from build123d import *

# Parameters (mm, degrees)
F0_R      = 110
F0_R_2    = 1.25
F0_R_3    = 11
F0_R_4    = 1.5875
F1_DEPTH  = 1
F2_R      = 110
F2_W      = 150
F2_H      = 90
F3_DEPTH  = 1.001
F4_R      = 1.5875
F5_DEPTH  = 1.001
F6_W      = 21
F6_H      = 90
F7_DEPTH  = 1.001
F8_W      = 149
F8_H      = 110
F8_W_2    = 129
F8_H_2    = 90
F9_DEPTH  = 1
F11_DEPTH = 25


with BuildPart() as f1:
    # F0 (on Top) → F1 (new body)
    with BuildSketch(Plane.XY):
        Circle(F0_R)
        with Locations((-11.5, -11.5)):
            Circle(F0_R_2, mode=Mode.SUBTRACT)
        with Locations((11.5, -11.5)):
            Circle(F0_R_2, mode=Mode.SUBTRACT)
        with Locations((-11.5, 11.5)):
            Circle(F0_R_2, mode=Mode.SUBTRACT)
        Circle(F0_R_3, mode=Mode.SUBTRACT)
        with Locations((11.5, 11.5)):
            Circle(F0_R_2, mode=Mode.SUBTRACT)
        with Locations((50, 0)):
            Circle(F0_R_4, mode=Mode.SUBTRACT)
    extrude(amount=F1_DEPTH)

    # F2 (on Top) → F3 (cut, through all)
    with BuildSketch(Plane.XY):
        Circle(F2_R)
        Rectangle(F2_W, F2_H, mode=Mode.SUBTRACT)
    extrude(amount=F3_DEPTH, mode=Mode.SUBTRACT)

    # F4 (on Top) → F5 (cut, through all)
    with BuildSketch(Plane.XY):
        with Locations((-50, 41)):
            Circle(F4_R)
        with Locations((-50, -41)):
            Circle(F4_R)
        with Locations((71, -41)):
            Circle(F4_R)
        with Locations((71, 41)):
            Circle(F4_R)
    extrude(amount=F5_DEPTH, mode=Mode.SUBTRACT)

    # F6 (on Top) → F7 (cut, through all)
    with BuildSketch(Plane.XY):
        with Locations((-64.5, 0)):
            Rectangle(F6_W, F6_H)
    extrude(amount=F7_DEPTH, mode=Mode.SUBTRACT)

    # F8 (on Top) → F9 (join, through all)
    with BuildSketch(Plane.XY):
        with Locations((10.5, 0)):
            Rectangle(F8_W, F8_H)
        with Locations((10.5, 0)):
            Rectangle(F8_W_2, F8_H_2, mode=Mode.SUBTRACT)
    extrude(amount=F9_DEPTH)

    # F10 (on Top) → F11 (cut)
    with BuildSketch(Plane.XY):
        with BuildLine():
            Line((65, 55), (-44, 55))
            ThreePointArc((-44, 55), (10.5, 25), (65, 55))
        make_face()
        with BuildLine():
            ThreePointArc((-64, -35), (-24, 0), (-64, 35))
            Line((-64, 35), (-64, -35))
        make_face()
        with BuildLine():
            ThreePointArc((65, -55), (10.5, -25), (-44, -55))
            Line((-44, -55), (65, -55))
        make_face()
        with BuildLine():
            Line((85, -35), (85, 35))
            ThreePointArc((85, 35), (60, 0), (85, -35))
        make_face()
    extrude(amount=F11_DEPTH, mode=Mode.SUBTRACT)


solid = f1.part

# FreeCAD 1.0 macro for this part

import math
import FreeCAD as App
import Part
import Sketcher


def add_polygon(sketch, points):
    """Adds a closed chain of lines whose ends are joined by coincident constraints."""
    first, n = sketch.GeometryCount, len(points)
    for a, b in zip(points, points[1:] + points[:1]):
        sketch.addGeometry(Part.LineSegment(App.Vector(*a, 0), App.Vector(*b, 0)), False)
    for i in range(n):
        sketch.addConstraint(Sketcher.Constraint("Coincident", first + i, 2, first + (i + 1) % n, 1))

doc = App.newDocument("Part")
params = doc.addObject("Spreadsheet::Sheet", "Params")
for row, (alias, value) in enumerate([
    ("sketch1_diameter", "220 mm"),
    ("sketch1_diameter2", "22 mm"),
    ("sketch1_diameter3", "2.5 mm"),
    ("pad1_length", "1 mm"),
    ("sketch2_diameter", "220 mm"),
    ("sketch2_width", "150 mm"),
    ("sketch2_height", "90 mm"),
    ("sketch4_width", "21 mm"),
    ("sketch4_height", "90 mm"),
    ("sketch5_width", "149 mm"),
    ("sketch5_width2", "129 mm"),
    ("sketch5_height", "110 mm"),
    ("sketch5_height2", "90 mm"),
    ("pad2_length", "1 mm"),
    ("sketch6_radius", "37 mm"),
    ("sketch6_width", "109 mm"),
    ("sketch6_height", "70 mm"),
    ("pocket4_length", "25 mm"),
], start=1):
    params.set(f"A{row}", alias)
    params.set(f"B{row}", "=" + value)
    params.setAlias(f"B{row}", alias)

body = doc.addObject("PartDesign::Body", "Body")

# Sketch on XY plane
sketch1 = body.newObject("Sketcher::SketchObject", "Sketch")
sketch1.AttachmentSupport = (doc.getObject("XY_Plane"), [""])
sketch1.MapMode = "FlatFace"
sketch1.addGeometry([
    Part.Circle(App.Vector(0, 0, 0), App.Vector(0, 0, 1), 110),  # 0
    Part.Circle(App.Vector(-11.5, -11.5, 0), App.Vector(0, 0, 1), 1.2),  # 1
    Part.Circle(App.Vector(11.5, -11.5, 0), App.Vector(0, 0, 1), 1.2),  # 2
    Part.Circle(App.Vector(0, 0, 0), App.Vector(0, 0, 1), 11),  # 3
    Part.Circle(App.Vector(-11.5, 11.5, 0), App.Vector(0, 0, 1), 1.2),  # 4
    Part.Circle(App.Vector(11.5, 11.5, 0), App.Vector(0, 0, 1), 1.2),  # 5
    Part.Circle(App.Vector(50, 0, 0), App.Vector(0, 0, 1), 1.6),  # 6
], False)
sketch1.addConstraint([
    Sketcher.Constraint("Coincident", 0, 3, -1, 1),
    Sketcher.Constraint("Coincident", 3, 3, -1, 1),
    Sketcher.Constraint("Equal", 1, 2),
    Sketcher.Constraint("Equal", 2, 4),
    Sketcher.Constraint("Equal", 4, 5),
    Sketcher.Constraint("Symmetric", 2, 3, 4, 3, -1, 1),
    Sketcher.Constraint("Symmetric", 1, 3, 5, 3, -1, 1),
    Sketcher.Constraint("Symmetric", 1, 3, 2, 3, -2),
    Sketcher.Constraint("PointOnObject", 6, 3, -1),
    Sketcher.Constraint("Diameter", 0, 220.0),
    Sketcher.Constraint("Diameter", 3, 22.0),
    Sketcher.Constraint("Diameter", 1, 2.5),
    Sketcher.Constraint("Diameter", 6, 3.175),
    Sketcher.Constraint("DistanceX", -1, 1, 6, 3, 50.0),
    Sketcher.Constraint("DistanceX", 1, 3, 2, 3, 23.0),
    Sketcher.Constraint("DistanceY", 1, 3, 4, 3, 23.0),
])
sketch1.setExpression("Constraints[9]", "Params.sketch1_diameter")
sketch1.setExpression("Constraints[10]", "Params.sketch1_diameter2")
sketch1.setExpression("Constraints[11]", "Params.sketch1_diameter3")
pad1 = body.newObject("PartDesign::Pad", "Pad")
pad1.Profile = sketch1
pad1.setExpression("Length", "Params.pad1_length")

# Sketch on XY plane
sketch2 = body.newObject("Sketcher::SketchObject", "Sketch001")
sketch2.AttachmentSupport = (doc.getObject("XY_Plane"), [""])
sketch2.MapMode = "FlatFace"
sketch2.addGeometry(Part.Circle(App.Vector(0, 0, 0), App.Vector(0, 0, 1), 110), False)  # 0
add_polygon(sketch2, [(75, -45), (-75, -45), (-75, 45), (75, 45)])  # lines 1-4
sketch2.addConstraint([
    Sketcher.Constraint("Horizontal", 1),
    Sketcher.Constraint("Vertical", 2),
    Sketcher.Constraint("Horizontal", 3),
    Sketcher.Constraint("Vertical", 4),
    Sketcher.Constraint("Coincident", 0, 3, -1, 1),
    Sketcher.Constraint("Symmetric", 1, 2, 3, 2, -1, 1),
    Sketcher.Constraint("Diameter", 0, 220.0),
    Sketcher.Constraint("DistanceX", 1, 2, 1, 1, 150.0),
    Sketcher.Constraint("DistanceY", 2, 1, 2, 2, 90.0),
])
sketch2.setExpression("Constraints[10]", "Params.sketch2_diameter")
sketch2.setExpression("Constraints[11]", "Params.sketch2_width")
sketch2.setExpression("Constraints[12]", "Params.sketch2_height")
pocket1 = body.newObject("PartDesign::Pocket", "Pocket")
pocket1.Profile = sketch2
pocket1.Type = "ThroughAll"
pocket1.Reversed = True

# Sketch on XY plane
sketch3 = body.newObject("Sketcher::SketchObject", "Sketch002")
sketch3.AttachmentSupport = (doc.getObject("XY_Plane"), [""])
sketch3.MapMode = "FlatFace"
sketch3.addGeometry([
    Part.Circle(App.Vector(-50, 41, 0), App.Vector(0, 0, 1), 1.6),
    Part.Circle(App.Vector(-50, -41, 0), App.Vector(0, 0, 1), 1.6),
    Part.Circle(App.Vector(71, -41, 0), App.Vector(0, 0, 1), 1.6),
    Part.Circle(App.Vector(71, 41, 0), App.Vector(0, 0, 1), 1.6),
], False)
sketch3.addConstraint([
    Sketcher.Constraint("Equal", 0, 1),
    Sketcher.Constraint("Equal", 1, 2),
    Sketcher.Constraint("Equal", 2, 3),
    Sketcher.Constraint("Symmetric", 0, 3, 1, 3, -1),
    Sketcher.Constraint("Symmetric", 2, 3, 3, 3, -1),
    Sketcher.Constraint("Horizontal", 1, 3, 2, 3),
    Sketcher.Constraint("Diameter", 0, 3.175),
    Sketcher.Constraint("DistanceX", 0, 3, -1, 1, 50.0),
    Sketcher.Constraint("DistanceY", -1, 1, 0, 3, 41.0),
    Sketcher.Constraint("DistanceX", -1, 1, 2, 3, 71.0),
])
pocket2 = body.newObject("PartDesign::Pocket", "Pocket001")
pocket2.Profile = sketch3
pocket2.Type = "ThroughAll"
pocket2.Reversed = True

# Sketch on XY plane
sketch4 = body.newObject("Sketcher::SketchObject", "Sketch003")
sketch4.AttachmentSupport = (doc.getObject("XY_Plane"), [""])
sketch4.MapMode = "FlatFace"
add_polygon(sketch4, [(-75, 45), (-75, -45), (-54, -45), (-54, 45)])  # lines 0-3
sketch4.addConstraint([
    Sketcher.Constraint("Vertical", 0),
    Sketcher.Constraint("Horizontal", 1),
    Sketcher.Constraint("Vertical", 2),
    Sketcher.Constraint("Horizontal", 3),
    Sketcher.Constraint("DistanceX", 1, 1, 1, 2, 21.0),
    Sketcher.Constraint("DistanceY", 0, 2, 0, 1, 90.0),
    Sketcher.Constraint("DistanceX", 0, 2, -1, 1, 75.0),
    Sketcher.Constraint("DistanceY", 0, 2, -1, 1, 45.0),
])
sketch4.setExpression("Constraints[8]", "Params.sketch4_width")
sketch4.setExpression("Constraints[9]", "Params.sketch4_height")
pocket3 = body.newObject("PartDesign::Pocket", "Pocket002")
pocket3.Profile = sketch4
pocket3.Type = "ThroughAll"
pocket3.Reversed = True

# Sketch on XY plane
sketch5 = body.newObject("Sketcher::SketchObject", "Sketch004")
sketch5.AttachmentSupport = (doc.getObject("XY_Plane"), [""])
sketch5.MapMode = "FlatFace"
add_polygon(sketch5, [(-64, 55), (-64, -55), (85, -55), (85, 55)])  # lines 0-3
add_polygon(sketch5, [(75, -45), (-54, -45), (-54, 45), (75, 45)])  # lines 4-7
sketch5.addConstraint([
    Sketcher.Constraint("Vertical", 0),
    Sketcher.Constraint("Horizontal", 1),
    Sketcher.Constraint("Vertical", 2),
    Sketcher.Constraint("Horizontal", 3),
    Sketcher.Constraint("Horizontal", 4),
    Sketcher.Constraint("Vertical", 5),
    Sketcher.Constraint("Horizontal", 6),
    Sketcher.Constraint("Vertical", 7),
    Sketcher.Constraint("DistanceX", 1, 1, 1, 2, 149.0),
    Sketcher.Constraint("DistanceX", 4, 2, 4, 1, 129.0),
    Sketcher.Constraint("DistanceY", 0, 2, 0, 1, 110.0),
    Sketcher.Constraint("DistanceY", 5, 1, 5, 2, 90.0),
    Sketcher.Constraint("DistanceX", 0, 2, -1, 1, 64.0),
    Sketcher.Constraint("DistanceY", 0, 2, -1, 1, 55.0),
    Sketcher.Constraint("DistanceX", 4, 2, -1, 1, 54.0),
    Sketcher.Constraint("DistanceY", 4, 2, -1, 1, 45.0),
])
sketch5.setExpression("Constraints[16]", "Params.sketch5_width")
sketch5.setExpression("Constraints[17]", "Params.sketch5_width2")
sketch5.setExpression("Constraints[18]", "Params.sketch5_height")
sketch5.setExpression("Constraints[19]", "Params.sketch5_height2")
pad2 = body.newObject("PartDesign::Pad", "Pad001")
pad2.Profile = sketch5
pad2.setExpression("Length", "Params.pad2_length")

# Sketch on XY plane
sketch6 = body.newObject("Sketcher::SketchObject", "Sketch005")
sketch6.AttachmentSupport = (doc.getObject("XY_Plane"), [""])
sketch6.MapMode = "FlatFace"
sketch6.addGeometry([
    Part.LineSegment(App.Vector(65, 55, 0), App.Vector(-44, 55, 0)),  # 0
    Part.ArcOfCircle(Part.Circle(App.Vector(10, 90, 0), App.Vector(0, 0, 1), 65), math.radians(-148), math.radians(-32)),  # 1
    Part.ArcOfCircle(Part.Circle(App.Vector(-59, 0, 0), App.Vector(0, 0, 1), 35), math.radians(-98), math.radians(98)),  # 2
    Part.LineSegment(App.Vector(-64, 35, 0), App.Vector(-64, -35, 0)),  # 3
    Part.ArcOfCircle(Part.Circle(App.Vector(10, -90, 0), App.Vector(0, 0, 1), 65), math.radians(32), math.radians(148)),  # 4
    Part.LineSegment(App.Vector(-44, -55, 0), App.Vector(65, -55, 0)),  # 5
    Part.LineSegment(App.Vector(85, -35, 0), App.Vector(85, 35, 0)),  # 6
    Part.ArcOfCircle(Part.Circle(App.Vector(97, 0, 0), App.Vector(0, 0, 1), 37), math.radians(109), math.radians(251)),  # 7
], False)
sketch6.addConstraint([
    Sketcher.Constraint("Coincident", 0, 1, 1, 2),
    Sketcher.Constraint("Coincident", 1, 1, 0, 2),
    Sketcher.Constraint("Coincident", 2, 1, 3, 2),
    Sketcher.Constraint("Coincident", 3, 1, 2, 2),
    Sketcher.Constraint("Coincident", 4, 1, 5, 2),
    Sketcher.Constraint("Coincident", 5, 1, 4, 2),
    Sketcher.Constraint("Coincident", 6, 1, 7, 2),
    Sketcher.Constraint("Coincident", 7, 1, 6, 2),
    Sketcher.Constraint("Horizontal", 0),
    Sketcher.Constraint("Vertical", 3),
    Sketcher.Constraint("Horizontal", 5),
    Sketcher.Constraint("Vertical", 6),
    Sketcher.Constraint("Equal", 1, 4),
    Sketcher.Constraint("Symmetric", 1, 3, 4, 3, -1),
    Sketcher.Constraint("PointOnObject", 2, 3, -1),
    Sketcher.Constraint("PointOnObject", 7, 3, -1),
    Sketcher.Constraint("Horizontal", 2, 1, 6, 1),
    Sketcher.Constraint("Vertical", 0, 1, 4, 1),
    Sketcher.Constraint("Radius", 7, 37.0),
    Sketcher.Constraint("DistanceX", 0, 2, 0, 1, 109.0),
    Sketcher.Constraint("DistanceY", 3, 2, 3, 1, 70.0),
    Sketcher.Constraint("DistanceX", -1, 1, 7, 3, 97.0),
    Sketcher.Constraint("DistanceX", -1, 1, 0, 1, 65.0),
    Sketcher.Constraint("DistanceY", -1, 1, 0, 1, 55.0),
    Sketcher.Constraint("DistanceX", 2, 1, -1, 1, 64.0),
    Sketcher.Constraint("Radius", 2, 35.3125),
    Sketcher.Constraint("Radius", 1, 64.504167),
])
sketch6.setExpression("Constraints[18]", "Params.sketch6_radius")
sketch6.setExpression("Constraints[19]", "Params.sketch6_width")
sketch6.setExpression("Constraints[20]", "Params.sketch6_height")
pocket4 = body.newObject("PartDesign::Pocket", "Pocket003")
pocket4.Profile = sketch6
pocket4.setExpression("Length", "Params.pocket4_length")
pocket4.Reversed = True

doc.recompute()
